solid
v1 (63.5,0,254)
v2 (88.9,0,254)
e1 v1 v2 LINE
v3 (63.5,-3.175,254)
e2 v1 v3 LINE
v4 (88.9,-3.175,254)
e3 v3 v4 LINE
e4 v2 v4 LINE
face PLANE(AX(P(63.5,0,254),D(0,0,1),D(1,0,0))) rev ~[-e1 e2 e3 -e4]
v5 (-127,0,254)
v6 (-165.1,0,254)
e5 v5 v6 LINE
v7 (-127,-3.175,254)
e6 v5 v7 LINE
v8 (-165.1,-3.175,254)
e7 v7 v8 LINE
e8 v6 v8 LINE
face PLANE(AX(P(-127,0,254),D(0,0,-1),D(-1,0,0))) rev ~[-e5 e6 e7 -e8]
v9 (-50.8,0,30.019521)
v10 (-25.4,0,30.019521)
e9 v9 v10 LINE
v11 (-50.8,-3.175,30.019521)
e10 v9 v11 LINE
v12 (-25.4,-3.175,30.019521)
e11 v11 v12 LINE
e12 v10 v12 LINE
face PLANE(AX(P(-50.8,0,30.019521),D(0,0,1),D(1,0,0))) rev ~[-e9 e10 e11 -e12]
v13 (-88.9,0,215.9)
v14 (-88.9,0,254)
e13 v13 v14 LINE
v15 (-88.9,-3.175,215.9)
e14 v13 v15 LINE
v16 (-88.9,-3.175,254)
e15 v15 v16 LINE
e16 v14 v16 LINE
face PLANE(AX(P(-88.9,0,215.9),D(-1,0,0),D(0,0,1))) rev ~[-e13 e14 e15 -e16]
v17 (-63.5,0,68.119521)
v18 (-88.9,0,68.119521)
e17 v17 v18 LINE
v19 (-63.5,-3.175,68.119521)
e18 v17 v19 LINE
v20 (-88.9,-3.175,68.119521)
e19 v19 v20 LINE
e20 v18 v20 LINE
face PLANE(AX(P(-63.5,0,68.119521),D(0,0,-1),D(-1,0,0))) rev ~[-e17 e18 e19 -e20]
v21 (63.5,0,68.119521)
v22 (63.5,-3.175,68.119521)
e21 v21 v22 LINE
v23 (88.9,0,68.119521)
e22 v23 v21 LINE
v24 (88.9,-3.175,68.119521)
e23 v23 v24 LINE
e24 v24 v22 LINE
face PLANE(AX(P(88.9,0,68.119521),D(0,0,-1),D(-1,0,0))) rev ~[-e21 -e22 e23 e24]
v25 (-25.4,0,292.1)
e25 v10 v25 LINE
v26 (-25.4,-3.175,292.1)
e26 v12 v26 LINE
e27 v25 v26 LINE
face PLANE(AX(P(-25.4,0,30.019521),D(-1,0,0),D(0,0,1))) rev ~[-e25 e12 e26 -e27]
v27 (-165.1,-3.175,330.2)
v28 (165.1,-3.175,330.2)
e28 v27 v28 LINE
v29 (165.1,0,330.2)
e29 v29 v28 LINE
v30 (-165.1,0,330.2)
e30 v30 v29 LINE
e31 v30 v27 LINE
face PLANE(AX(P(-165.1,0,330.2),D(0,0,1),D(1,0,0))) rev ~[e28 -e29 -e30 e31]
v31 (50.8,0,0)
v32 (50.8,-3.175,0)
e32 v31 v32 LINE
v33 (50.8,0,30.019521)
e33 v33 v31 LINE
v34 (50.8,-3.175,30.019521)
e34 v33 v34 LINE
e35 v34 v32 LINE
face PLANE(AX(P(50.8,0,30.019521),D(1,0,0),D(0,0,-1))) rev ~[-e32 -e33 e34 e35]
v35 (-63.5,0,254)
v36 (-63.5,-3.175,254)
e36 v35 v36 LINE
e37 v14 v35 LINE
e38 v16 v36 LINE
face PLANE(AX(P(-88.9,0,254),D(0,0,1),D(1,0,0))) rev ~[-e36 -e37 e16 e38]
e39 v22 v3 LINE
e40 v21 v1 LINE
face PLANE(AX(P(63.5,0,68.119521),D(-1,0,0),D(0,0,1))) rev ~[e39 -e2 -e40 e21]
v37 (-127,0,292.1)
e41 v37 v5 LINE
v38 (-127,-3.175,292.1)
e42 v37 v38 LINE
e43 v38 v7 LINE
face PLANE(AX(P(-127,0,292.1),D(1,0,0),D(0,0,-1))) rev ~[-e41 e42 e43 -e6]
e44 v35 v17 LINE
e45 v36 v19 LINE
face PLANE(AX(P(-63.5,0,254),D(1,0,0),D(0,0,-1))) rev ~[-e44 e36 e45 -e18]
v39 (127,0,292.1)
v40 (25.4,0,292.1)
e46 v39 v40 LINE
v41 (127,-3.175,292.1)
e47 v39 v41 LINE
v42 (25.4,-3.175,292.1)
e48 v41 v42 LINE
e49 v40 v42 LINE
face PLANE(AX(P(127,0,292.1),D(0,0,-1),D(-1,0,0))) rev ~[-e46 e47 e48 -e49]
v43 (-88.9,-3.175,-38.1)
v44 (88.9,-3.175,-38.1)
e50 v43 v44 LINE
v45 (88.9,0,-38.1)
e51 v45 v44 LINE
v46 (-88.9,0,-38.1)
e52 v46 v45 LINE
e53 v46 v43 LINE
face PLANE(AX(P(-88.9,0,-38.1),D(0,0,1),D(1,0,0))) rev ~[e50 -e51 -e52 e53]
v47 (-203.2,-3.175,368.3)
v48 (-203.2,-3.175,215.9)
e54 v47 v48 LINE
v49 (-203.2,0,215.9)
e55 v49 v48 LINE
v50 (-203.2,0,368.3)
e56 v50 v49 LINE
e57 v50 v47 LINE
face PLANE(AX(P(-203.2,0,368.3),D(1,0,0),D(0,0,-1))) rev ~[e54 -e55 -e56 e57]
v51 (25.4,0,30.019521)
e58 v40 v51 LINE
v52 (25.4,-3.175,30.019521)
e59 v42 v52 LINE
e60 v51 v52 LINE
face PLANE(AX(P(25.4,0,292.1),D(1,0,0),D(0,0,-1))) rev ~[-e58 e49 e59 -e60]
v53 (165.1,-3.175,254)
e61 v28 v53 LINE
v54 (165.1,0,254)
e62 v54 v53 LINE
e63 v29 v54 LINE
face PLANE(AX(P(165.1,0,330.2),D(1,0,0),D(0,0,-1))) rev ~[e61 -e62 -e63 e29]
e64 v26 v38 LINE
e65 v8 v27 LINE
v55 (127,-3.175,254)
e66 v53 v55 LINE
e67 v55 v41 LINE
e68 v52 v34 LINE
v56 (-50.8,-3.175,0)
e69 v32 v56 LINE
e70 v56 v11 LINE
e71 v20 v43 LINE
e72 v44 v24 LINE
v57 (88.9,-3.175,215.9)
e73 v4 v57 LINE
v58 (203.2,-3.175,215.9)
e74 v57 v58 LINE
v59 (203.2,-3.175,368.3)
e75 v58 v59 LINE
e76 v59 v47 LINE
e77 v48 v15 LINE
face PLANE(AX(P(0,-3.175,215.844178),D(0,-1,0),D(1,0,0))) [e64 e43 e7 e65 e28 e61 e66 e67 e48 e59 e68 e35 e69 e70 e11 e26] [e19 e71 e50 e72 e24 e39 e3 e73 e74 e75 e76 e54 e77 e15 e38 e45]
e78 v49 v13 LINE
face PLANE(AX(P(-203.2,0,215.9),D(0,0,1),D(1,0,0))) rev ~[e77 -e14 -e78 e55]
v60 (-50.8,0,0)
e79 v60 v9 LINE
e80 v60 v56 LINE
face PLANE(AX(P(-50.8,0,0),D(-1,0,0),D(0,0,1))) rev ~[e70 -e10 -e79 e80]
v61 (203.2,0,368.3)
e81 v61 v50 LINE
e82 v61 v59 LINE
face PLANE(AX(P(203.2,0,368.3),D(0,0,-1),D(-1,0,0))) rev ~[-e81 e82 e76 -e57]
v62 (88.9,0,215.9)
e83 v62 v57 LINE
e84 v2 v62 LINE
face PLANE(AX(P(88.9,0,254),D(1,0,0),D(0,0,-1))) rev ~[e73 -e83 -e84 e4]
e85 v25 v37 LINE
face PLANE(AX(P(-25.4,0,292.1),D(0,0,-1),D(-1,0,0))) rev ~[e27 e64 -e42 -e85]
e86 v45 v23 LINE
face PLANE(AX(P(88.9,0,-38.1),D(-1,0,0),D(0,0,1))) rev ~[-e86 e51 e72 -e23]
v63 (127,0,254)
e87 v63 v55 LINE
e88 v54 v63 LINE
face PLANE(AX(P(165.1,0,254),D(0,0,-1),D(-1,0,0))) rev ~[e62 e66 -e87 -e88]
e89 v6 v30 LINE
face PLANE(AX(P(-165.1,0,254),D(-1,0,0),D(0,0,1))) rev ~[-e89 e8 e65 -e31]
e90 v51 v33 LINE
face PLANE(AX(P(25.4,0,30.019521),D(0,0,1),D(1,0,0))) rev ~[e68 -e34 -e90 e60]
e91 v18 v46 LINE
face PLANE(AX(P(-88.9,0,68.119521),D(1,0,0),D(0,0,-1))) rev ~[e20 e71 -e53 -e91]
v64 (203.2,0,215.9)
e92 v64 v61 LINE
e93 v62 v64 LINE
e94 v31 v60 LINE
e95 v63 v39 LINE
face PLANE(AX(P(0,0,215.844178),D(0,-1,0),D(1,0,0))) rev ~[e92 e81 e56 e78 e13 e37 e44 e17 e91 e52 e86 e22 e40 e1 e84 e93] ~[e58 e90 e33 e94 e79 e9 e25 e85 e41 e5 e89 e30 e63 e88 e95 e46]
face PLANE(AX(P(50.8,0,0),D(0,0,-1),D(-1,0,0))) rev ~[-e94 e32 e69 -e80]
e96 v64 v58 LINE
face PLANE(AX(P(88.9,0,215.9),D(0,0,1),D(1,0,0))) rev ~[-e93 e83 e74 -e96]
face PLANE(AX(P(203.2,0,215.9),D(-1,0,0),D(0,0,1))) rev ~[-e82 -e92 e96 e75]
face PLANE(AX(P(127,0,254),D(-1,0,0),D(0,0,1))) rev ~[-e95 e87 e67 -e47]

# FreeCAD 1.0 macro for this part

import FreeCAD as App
import Part
import Sketcher
Q = App.Units.Quantity


def add_polygon(sketch, points):
    """Adds a closed chain of lines whose ends are joined by coincident constraints."""
    first, n = sketch.GeometryCount, len(points)
    for a, b in zip(points, points[1:] + points[:1]):
        sketch.addGeometry(Part.LineSegment(App.Vector(*a, 0), App.Vector(*b, 0)), False)
    for i in range(n):
        sketch.addConstraint(Sketcher.Constraint("Coincident", first + i, 2, first + (i + 1) % n, 1))

doc = App.newDocument("Part")
params = doc.addObject("Spreadsheet::Sheet", "Params")
for row, (alias, value) in enumerate([
    ("sketch1_width", "1 in"),
    ("sketch1_width2", "7 in"),
    ("sketch1_width3", "16 in"),
    ("sketch1_width4", "13 in"),
    ("sketch1_width5", "4 in"),
    ("pad1_length", "0.125 in"),
], start=1):
    params.set(f"A{row}", alias)
    params.set(f"B{row}", "=" + value)
    params.setAlias(f"B{row}", alias)

body = doc.addObject("PartDesign::Body", "Body")

# Sketch on XZ plane
sketch1 = body.newObject("Sketcher::SketchObject", "Sketch")
sketch1.AttachmentSupport = (doc.getObject("XZ_Plane"), [""])
sketch1.MapMode = "FlatFace"
add_polygon(sketch1, [(-89, 254), (-64, 254), (-64, 68), (-89, 68), (-89, -38), (89, -38), (89, 68), (64, 68), (64, 254), (89, 254), (89, 216), (203, 216), (203, 368), (-203, 368), (-203, 216), (-89, 216)])  # lines 0-15
add_polygon(sketch1, [(-165, 330), (165, 330), (165, 254), (127, 254), (127, 292), (25, 292), (25, 30), (51, 30), (51, 0), (-51, 0), (-51, 30), (-25, 30), (-25, 292), (-127, 292), (-127, 254), (-165, 254)])  # lines 16-31
sketch1.addConstraint([
    Sketcher.Constraint("Horizontal", 0),
    Sketcher.Constraint("Vertical", 1),
    Sketcher.Constraint("Horizontal", 2),
    Sketcher.Constraint("Vertical", 3),
    Sketcher.Constraint("Horizontal", 4),
    Sketcher.Constraint("Vertical", 5),
    Sketcher.Constraint("Horizontal", 6),
    Sketcher.Constraint("Vertical", 7),
    Sketcher.Constraint("Horizontal", 8),
    Sketcher.Constraint("Vertical", 9),
    Sketcher.Constraint("Horizontal", 10),
    Sketcher.Constraint("Vertical", 11),
    Sketcher.Constraint("Horizontal", 12),
    Sketcher.Constraint("Vertical", 13),
    Sketcher.Constraint("Horizontal", 14),
    Sketcher.Constraint("Vertical", 15),
    Sketcher.Constraint("Horizontal", 16),
    Sketcher.Constraint("Vertical", 17),
    Sketcher.Constraint("Horizontal", 18),
    Sketcher.Constraint("Vertical", 19),
    Sketcher.Constraint("Horizontal", 20),
    Sketcher.Constraint("Vertical", 21),
    Sketcher.Constraint("Horizontal", 22),
    Sketcher.Constraint("Vertical", 23),
    Sketcher.Constraint("Horizontal", 24),
    Sketcher.Constraint("Vertical", 25),
    Sketcher.Constraint("Horizontal", 26),
    Sketcher.Constraint("Vertical", 27),
    Sketcher.Constraint("Horizontal", 28),
    Sketcher.Constraint("Vertical", 29),
    Sketcher.Constraint("Horizontal", 30),
    Sketcher.Constraint("Vertical", 31),
    Sketcher.Constraint("Symmetric", 23, 2, 24, 2, -1, 1),
    Sketcher.Constraint("Symmetric", 2, 2, 5, 2, -2),
    Sketcher.Constraint("Symmetric", 0, 2, 7, 2, -2),
    Sketcher.Constraint("Symmetric", 10, 2, 13, 2, -2),
    Sketcher.Constraint("Symmetric", 21, 2, 26, 2, -2),
    Sketcher.Constraint("Symmetric", 19, 2, 28, 2, -2),
    Sketcher.Constraint("Symmetric", 17, 2, 30, 2, -2),
    Sketcher.Constraint("Horizontal", 15, 2, 17, 2),
    Sketcher.Constraint("Vertical", 5, 2, 8, 2),
    Sketcher.Constraint("Vertical", 3, 2, 14, 2),
    Sketcher.Constraint("Equal", 8, 22),
    Sketcher.Constraint("Equal", 20, 24),
    Sketcher.Constraint("Equal", 30, 9),
    Sketcher.Constraint("Equal", 15, 19),
    Sketcher.Constraint("DistanceX", 0, 1, 0, 2, Q("1 in")),
    Sketcher.Constraint("DistanceX", 4, 1, 4, 2, Q("7 in")),
    Sketcher.Constraint("DistanceX", 12, 2, 12, 1, Q("16 in")),
    Sketcher.Constraint("DistanceX", 16, 1, 16, 2, Q("13 in")),
    Sketcher.Constraint("DistanceX", 20, 2, 20, 1, Q("4 in")),
    Sketcher.Constraint("DistanceY", 11, 1, 11, 2, Q("6 in")),
    Sketcher.Constraint("DistanceY", 17, 2, 17, 1, Q("3 in")),
    Sketcher.Constraint("DistanceY", -1, 1, 0, 2, Q("10 in")),
    Sketcher.Constraint("DistanceY", 3, 2, -1, 1, Q("1.5 in")),
    Sketcher.Constraint("DistanceY", 21, 2, 6, 2, Q("1.5 in")),
    Sketcher.Constraint("DistanceY", 1, 2, 1, 1, 185.880479),
])
sketch1.setExpression("Constraints[78]", "Params.sketch1_width")
sketch1.setExpression("Constraints[79]", "Params.sketch1_width2")
sketch1.setExpression("Constraints[80]", "Params.sketch1_width3")
sketch1.setExpression("Constraints[81]", "Params.sketch1_width4")
sketch1.setExpression("Constraints[82]", "Params.sketch1_width5")
pad1 = body.newObject("PartDesign::Pad", "Pad")
pad1.Profile = sketch1
pad1.setExpression("Length", "Params.pad1_length")

doc.recompute()
